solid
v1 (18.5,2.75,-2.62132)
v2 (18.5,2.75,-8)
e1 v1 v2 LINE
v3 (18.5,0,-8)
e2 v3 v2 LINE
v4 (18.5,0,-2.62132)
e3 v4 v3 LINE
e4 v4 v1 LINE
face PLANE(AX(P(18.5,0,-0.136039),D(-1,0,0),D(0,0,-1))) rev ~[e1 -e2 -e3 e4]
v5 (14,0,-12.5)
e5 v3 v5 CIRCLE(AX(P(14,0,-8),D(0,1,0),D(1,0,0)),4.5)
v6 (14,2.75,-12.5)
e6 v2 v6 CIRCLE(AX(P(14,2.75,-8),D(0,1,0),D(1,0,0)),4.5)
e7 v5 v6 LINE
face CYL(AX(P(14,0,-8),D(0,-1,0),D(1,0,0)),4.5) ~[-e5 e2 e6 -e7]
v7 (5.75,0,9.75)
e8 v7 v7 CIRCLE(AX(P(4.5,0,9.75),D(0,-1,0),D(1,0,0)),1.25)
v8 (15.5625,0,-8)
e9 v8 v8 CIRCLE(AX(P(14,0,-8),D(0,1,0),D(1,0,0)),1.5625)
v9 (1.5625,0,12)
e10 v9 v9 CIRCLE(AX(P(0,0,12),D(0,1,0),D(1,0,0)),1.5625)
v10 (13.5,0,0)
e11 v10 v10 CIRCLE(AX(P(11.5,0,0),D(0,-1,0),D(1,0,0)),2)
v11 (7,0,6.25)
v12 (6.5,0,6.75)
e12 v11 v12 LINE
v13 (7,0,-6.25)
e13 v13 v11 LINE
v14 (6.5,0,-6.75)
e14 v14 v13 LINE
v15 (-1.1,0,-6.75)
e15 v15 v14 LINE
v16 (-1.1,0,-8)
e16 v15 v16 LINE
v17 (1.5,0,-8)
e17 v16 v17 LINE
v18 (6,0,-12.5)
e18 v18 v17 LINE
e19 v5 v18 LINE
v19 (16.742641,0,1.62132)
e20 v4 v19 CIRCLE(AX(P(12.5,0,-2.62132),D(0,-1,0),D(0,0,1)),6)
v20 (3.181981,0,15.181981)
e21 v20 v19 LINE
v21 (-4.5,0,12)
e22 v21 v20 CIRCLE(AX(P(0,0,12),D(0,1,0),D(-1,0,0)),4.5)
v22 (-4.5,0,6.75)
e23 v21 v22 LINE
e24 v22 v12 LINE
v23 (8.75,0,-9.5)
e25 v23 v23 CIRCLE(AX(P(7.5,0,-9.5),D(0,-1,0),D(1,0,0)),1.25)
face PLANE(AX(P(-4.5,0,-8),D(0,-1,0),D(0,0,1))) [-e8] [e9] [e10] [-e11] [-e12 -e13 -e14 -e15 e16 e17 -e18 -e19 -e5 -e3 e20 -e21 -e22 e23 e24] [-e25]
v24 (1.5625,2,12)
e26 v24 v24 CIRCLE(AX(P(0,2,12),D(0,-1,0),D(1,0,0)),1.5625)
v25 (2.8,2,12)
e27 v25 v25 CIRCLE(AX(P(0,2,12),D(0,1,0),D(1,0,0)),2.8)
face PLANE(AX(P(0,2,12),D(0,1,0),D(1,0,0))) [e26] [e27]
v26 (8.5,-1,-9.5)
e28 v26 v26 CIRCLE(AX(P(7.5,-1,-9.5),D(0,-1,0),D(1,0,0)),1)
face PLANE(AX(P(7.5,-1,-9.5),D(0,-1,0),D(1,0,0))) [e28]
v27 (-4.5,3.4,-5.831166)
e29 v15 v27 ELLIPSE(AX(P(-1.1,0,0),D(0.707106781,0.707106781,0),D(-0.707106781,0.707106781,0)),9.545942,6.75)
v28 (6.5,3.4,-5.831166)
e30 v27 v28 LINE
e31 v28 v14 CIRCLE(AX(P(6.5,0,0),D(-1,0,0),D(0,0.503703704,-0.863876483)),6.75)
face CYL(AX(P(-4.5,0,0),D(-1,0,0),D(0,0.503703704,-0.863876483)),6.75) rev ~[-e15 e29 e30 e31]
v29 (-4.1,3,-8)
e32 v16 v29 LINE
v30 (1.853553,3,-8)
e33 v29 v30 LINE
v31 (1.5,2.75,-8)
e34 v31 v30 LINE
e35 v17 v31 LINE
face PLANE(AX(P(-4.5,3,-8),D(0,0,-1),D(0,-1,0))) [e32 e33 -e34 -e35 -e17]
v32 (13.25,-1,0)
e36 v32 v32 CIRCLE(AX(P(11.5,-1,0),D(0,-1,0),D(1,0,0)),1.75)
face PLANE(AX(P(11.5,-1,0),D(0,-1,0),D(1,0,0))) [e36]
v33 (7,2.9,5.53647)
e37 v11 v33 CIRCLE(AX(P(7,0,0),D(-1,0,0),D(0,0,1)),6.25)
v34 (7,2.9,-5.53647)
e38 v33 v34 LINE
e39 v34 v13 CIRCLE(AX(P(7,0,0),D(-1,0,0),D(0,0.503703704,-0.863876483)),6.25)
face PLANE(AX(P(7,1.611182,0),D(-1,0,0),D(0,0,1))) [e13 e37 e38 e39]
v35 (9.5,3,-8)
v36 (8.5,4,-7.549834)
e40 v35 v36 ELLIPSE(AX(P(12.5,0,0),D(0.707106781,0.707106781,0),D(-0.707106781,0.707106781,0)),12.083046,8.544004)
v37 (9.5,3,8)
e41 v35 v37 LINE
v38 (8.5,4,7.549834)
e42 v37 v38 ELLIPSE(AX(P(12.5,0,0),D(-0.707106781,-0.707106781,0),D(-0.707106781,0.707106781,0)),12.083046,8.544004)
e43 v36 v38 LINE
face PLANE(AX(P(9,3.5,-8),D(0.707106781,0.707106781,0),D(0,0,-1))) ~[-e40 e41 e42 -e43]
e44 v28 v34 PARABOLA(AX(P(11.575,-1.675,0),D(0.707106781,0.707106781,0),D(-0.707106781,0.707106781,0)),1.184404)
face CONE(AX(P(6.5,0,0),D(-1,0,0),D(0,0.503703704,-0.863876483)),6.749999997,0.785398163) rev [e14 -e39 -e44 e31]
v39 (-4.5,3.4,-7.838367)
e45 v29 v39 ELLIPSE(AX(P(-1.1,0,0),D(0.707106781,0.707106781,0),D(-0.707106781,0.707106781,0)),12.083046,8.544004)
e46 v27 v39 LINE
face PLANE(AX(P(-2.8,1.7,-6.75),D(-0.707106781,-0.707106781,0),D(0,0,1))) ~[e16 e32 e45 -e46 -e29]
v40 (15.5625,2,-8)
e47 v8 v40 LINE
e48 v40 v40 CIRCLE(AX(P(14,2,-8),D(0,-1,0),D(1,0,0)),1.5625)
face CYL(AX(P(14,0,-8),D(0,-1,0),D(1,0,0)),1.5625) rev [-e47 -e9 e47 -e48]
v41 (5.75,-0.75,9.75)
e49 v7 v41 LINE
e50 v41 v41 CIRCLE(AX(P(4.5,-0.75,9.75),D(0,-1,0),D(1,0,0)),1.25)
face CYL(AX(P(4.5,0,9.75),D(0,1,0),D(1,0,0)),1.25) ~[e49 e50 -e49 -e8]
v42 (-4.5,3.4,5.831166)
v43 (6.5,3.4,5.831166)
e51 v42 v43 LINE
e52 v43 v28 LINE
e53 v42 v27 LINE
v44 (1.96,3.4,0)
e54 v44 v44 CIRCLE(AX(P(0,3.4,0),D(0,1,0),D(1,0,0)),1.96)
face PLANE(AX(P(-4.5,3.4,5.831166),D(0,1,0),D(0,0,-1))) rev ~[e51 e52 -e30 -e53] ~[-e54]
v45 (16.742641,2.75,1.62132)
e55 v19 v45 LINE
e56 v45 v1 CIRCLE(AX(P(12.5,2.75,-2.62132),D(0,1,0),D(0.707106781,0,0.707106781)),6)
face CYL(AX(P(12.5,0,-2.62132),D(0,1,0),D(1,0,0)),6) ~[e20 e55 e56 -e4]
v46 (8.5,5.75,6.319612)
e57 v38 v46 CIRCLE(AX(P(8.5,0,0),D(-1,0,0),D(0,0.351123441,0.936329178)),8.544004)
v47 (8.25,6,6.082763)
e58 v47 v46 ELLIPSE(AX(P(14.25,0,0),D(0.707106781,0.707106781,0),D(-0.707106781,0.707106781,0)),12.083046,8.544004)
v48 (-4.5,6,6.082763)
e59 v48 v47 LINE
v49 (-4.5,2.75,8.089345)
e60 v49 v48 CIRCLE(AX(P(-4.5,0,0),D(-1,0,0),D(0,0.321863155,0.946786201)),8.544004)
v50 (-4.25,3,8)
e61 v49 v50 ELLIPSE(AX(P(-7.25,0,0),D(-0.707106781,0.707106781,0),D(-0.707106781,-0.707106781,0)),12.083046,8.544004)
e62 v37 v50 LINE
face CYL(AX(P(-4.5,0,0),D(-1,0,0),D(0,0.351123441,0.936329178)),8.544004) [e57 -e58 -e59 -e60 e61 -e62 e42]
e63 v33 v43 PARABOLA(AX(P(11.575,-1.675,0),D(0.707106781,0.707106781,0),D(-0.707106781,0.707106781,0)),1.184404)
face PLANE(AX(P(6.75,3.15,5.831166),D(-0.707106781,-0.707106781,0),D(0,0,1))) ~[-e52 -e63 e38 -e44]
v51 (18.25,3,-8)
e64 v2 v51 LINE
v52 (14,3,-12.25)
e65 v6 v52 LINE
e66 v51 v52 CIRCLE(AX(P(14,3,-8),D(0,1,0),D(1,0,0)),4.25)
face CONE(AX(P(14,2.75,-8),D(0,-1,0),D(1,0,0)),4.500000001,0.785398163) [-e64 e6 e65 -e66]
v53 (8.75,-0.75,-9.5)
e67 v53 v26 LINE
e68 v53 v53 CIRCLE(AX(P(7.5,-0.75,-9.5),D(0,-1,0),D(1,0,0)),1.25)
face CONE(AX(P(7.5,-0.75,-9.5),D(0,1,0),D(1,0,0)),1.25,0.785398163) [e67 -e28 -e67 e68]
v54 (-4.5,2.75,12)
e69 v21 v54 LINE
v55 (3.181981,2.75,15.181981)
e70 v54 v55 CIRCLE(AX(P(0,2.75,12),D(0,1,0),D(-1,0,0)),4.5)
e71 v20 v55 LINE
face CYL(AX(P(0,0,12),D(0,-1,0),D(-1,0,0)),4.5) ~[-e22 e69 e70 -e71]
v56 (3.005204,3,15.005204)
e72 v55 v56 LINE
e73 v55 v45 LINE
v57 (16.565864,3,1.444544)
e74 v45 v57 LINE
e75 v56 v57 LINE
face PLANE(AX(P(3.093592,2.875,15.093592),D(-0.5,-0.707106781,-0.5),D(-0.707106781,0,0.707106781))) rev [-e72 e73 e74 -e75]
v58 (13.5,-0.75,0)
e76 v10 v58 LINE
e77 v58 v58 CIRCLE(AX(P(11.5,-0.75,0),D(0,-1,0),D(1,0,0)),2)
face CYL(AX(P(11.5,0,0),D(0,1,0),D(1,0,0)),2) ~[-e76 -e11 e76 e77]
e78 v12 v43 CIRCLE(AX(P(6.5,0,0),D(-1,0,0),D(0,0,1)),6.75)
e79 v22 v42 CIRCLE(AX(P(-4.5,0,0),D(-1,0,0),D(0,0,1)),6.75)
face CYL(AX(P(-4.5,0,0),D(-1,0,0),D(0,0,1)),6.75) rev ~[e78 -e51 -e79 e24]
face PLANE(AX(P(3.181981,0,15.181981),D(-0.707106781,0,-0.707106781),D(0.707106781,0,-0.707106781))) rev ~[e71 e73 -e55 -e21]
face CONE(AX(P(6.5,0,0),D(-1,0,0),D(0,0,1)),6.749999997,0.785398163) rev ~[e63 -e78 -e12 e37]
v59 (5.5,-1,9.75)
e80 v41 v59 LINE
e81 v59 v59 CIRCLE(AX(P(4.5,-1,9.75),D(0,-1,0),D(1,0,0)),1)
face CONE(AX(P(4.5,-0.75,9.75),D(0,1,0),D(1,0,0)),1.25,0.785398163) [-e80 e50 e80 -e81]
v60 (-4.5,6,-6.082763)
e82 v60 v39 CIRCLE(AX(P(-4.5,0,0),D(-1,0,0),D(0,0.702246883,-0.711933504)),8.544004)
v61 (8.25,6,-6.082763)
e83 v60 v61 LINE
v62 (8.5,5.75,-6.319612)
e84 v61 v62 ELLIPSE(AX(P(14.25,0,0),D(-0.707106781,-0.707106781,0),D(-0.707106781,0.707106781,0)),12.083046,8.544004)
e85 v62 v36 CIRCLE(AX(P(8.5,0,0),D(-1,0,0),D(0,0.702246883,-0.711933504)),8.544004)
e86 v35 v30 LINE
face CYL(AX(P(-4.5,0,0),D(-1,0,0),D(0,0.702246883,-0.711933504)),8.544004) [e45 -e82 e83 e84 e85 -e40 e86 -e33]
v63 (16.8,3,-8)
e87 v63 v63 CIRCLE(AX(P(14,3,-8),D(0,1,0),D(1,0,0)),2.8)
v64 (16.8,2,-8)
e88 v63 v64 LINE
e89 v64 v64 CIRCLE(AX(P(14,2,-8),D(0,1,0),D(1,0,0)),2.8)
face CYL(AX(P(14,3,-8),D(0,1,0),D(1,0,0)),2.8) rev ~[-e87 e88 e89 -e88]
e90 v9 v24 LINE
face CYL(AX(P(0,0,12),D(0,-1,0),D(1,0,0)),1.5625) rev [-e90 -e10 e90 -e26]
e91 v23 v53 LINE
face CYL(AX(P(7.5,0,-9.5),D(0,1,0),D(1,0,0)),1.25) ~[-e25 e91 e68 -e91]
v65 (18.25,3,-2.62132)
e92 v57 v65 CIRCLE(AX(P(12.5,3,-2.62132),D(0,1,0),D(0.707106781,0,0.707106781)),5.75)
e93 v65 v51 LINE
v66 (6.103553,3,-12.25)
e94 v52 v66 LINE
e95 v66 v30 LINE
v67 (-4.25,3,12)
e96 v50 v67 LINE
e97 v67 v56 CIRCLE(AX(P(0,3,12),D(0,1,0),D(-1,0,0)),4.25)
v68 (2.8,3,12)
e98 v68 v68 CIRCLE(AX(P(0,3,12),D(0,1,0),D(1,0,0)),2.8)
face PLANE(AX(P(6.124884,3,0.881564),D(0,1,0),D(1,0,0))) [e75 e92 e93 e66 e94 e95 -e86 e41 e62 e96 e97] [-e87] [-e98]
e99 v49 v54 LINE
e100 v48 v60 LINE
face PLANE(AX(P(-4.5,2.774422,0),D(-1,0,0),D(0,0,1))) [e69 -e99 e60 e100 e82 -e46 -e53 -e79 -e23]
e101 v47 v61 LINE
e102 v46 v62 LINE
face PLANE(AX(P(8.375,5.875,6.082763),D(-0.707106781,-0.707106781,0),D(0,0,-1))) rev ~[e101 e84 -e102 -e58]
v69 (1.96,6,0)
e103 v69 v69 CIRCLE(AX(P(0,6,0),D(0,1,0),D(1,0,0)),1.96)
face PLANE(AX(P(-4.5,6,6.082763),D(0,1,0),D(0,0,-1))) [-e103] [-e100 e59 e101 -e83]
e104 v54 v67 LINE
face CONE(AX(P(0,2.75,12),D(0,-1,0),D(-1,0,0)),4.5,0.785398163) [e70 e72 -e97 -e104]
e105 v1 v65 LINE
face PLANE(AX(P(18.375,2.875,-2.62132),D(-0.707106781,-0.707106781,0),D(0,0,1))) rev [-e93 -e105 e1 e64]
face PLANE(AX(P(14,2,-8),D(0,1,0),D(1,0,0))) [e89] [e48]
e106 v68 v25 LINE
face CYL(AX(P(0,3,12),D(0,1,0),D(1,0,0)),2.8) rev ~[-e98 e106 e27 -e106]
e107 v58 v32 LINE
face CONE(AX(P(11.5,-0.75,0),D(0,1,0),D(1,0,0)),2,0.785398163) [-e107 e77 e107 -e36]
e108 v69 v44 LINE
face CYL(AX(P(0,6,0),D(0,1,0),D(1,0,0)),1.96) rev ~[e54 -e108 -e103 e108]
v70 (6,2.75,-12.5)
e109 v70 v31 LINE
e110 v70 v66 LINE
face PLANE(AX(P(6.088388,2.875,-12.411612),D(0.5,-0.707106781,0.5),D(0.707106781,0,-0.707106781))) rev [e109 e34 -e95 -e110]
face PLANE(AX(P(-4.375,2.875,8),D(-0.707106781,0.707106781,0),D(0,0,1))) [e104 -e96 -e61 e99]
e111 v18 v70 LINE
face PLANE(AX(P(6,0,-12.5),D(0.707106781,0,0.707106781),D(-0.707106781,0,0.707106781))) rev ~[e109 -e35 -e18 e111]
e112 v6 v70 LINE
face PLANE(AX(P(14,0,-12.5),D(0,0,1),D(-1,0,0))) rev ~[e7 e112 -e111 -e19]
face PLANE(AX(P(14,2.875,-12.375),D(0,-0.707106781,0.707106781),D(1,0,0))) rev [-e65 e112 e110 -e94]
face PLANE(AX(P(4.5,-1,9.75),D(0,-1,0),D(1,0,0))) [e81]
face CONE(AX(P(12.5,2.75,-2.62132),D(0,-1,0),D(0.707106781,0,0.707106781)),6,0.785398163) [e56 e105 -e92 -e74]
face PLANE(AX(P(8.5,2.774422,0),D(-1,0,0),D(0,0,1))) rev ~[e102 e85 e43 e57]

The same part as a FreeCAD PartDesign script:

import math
import FreeCAD as App
import Part
import Sketcher
Q = App.Units.Quantity


def edges_at(feature, points):
    """Names of the edges that pass closest to the given points."""
    edges = feature.Shape.Edges
    near = lambda p: min(range(len(edges)), key=lambda i: edges[i].distToShape(Part.Vertex(*p))[0])
    return sorted({f"Edge{near(p) + 1}" for p in points})

doc = App.newDocument("Part")
body = doc.addObject("PartDesign::Body", "Body")

sketch1 = doc.addObject("Sketcher::SketchObject", "Sketch")
body.addObject(sketch1)
sketch1.AttachmentSupport = (doc.XZ_Plane, [""])
sketch1.MapMode = "FlatFace"
sketch1.addGeometry([
    Part.LineSegment(App.Vector(3.2, 15.2, 0), App.Vector(18.5, -0.1, 0)),
    Part.LineSegment(App.Vector(18.5, -0.1, 0), App.Vector(18.5, -8, 0)),
    Part.ArcOfCircle(Part.Circle(App.Vector(14, -8, 0), App.Vector(0, 0, 1), 4.5), math.radians(-90), math.radians(0)),
    Part.LineSegment(App.Vector(14, -12.5, 0), App.Vector(6, -12.5, 0)),
    Part.LineSegment(App.Vector(6, -12.5, 0), App.Vector(-4.5, -2, 0)),
    Part.LineSegment(App.Vector(-4.5, -2, 0), App.Vector(-4.5, 12, 0)),
    Part.ArcOfCircle(Part.Circle(App.Vector(0, 12, 0), App.Vector(0, 0, 1), 4.5), math.radians(45), math.radians(180)),
    Part.Circle(App.Vector(0, 12, 0), App.Vector(0, 0, 1), 1.6),
    Part.Circle(App.Vector(14, -8, 0), App.Vector(0, 0, 1), 1.6),
], False)
sketch1.addConstraint([
    Sketcher.Constraint("Coincident", 0, 2, 1, 1),
    Sketcher.Constraint("Tangent", 1, 2, 2, 2),
    Sketcher.Constraint("Tangent", 2, 1, 3, 1),
    Sketcher.Constraint("Coincident", 3, 2, 4, 1),
    Sketcher.Constraint("Coincident", 4, 2, 5, 1),
    Sketcher.Constraint("Tangent", 5, 2, 6, 2),
    Sketcher.Constraint("Tangent", 6, 1, 0, 1),
    Sketcher.Constraint("Vertical", 1),
    Sketcher.Constraint("Horizontal", 3),
    Sketcher.Constraint("Vertical", 5),
    Sketcher.Constraint("Coincident", 7, 3, 6, 3),
    Sketcher.Constraint("Coincident", 8, 3, 2, 3),
    Sketcher.Constraint("Equal", 2, 6),
    Sketcher.Constraint("Equal", 7, 8),
    Sketcher.Constraint("PointOnObject", 6, 3, -2),
    Sketcher.Constraint("Parallel", 0, 4),
    Sketcher.Constraint("Radius", 2, 4.5),
    Sketcher.Constraint("DistanceX", 3, 2, 3, 1, 8.0),
    Sketcher.Constraint("DistanceY", 5, 1, 5, 2, 14.0),
    Sketcher.Constraint("Angle", 0, Q("-45 deg")),
    Sketcher.Constraint("Diameter", 7, 3.125),
    Sketcher.Constraint("DistanceX", -1, 1, 2, 3, 14.0),
    Sketcher.Constraint("DistanceY", 2, 3, -1, 1, 8.0),
])
pad1 = doc.addObject("PartDesign::Pad", "Pad")
body.addObject(pad1)
pad1.Profile = sketch1
pad1.Length = 3
pad1.Reversed = True

sketch2 = doc.addObject("Sketcher::SketchObject", "Sketch001")
body.addObject(sketch2)
sketch2.AttachmentSupport = (doc.YZ_Plane, [""])
sketch2.MapMode = "FlatFace"
sketch2.AttachmentOffset = App.Placement(App.Vector(0, 0, -4.5), App.Rotation())
sketch2.addGeometry([
    Part.LineSegment(App.Vector(0, -8, 0), App.Vector(0, 8, 0)),
    Part.LineSegment(App.Vector(0, 8, 0), App.Vector(3, 8, 0)),
    Part.ArcOfCircle(Part.Circle(App.Vector(0, 0, 0), App.Vector(0, 0, 1), 8.5), math.radians(45), math.radians(69)),
    Part.LineSegment(App.Vector(6, 6.1, 0), App.Vector(6, -6.1, 0)),
    Part.ArcOfCircle(Part.Circle(App.Vector(0, 0, 0), App.Vector(0, 0, 1), 8.5), math.radians(-69), math.radians(-45)),
    Part.LineSegment(App.Vector(3, -8, 0), App.Vector(0, -8, 0)),
], False)
sketch2.addConstraint([
    Sketcher.Constraint("Coincident", 0, 2, 1, 1),
    Sketcher.Constraint("Coincident", 1, 2, 2, 2),
    Sketcher.Constraint("Coincident", 2, 1, 3, 1),
    Sketcher.Constraint("Coincident", 3, 2, 4, 2),
    Sketcher.Constraint("Coincident", 4, 1, 5, 1),
    Sketcher.Constraint("Coincident", 5, 2, 0, 1),
    Sketcher.Constraint("Vertical", 0),
    Sketcher.Constraint("Horizontal", 1),
    Sketcher.Constraint("Vertical", 3),
    Sketcher.Constraint("Horizontal", 5),
    Sketcher.Constraint("Coincident", 2, 3, -1, 1),
    Sketcher.Constraint("Coincident", 4, 3, -1, 1),
    Sketcher.Constraint("Equal", 2, 4),
    Sketcher.Constraint("Symmetric", 0, 2, 5, 2, -1, 1),
    Sketcher.Constraint("DistanceX", 1, 1, 1, 2, 3.0),
    Sketcher.Constraint("DistanceY", 0, 1, 0, 2, 16.0),
    Sketcher.Constraint("DistanceX", -1, 1, 2, 1, 6.0),
])
pad2 = doc.addObject("PartDesign::Pad", "Pad001")
body.addObject(pad2)
pad2.Profile = sketch2
pad2.Length = 13

sketch3 = doc.addObject("Sketcher::SketchObject", "Sketch002")
body.addObject(sketch3)
sketch3.AttachmentSupport = (doc.YZ_Plane, [""])
sketch3.MapMode = "FlatFace"
sketch3.AttachmentOffset = App.Placement(App.Vector(0, 0, -4.5), App.Rotation())
sketch3.addGeometry([
    Part.LineSegment(App.Vector(0, -6.8, 0), App.Vector(0, 6.8, 0)),
    Part.ArcOfCircle(Part.Circle(App.Vector(0, 0, 0), App.Vector(0, 0, 1), 6.7), math.radians(60), math.radians(90)),
    Part.LineSegment(App.Vector(3.4, 5.8, 0), App.Vector(3.4, -5.8, 0)),
    Part.ArcOfCircle(Part.Circle(App.Vector(0, 0, 0), App.Vector(0, 0, 1), 6.7), math.radians(-90), math.radians(-60)),
], False)
sketch3.addConstraint([
    Sketcher.Constraint("Coincident", 0, 2, 1, 2),
    Sketcher.Constraint("Coincident", 1, 1, 2, 1),
    Sketcher.Constraint("Coincident", 2, 2, 3, 2),
    Sketcher.Constraint("Coincident", 3, 1, 0, 1),
    Sketcher.Constraint("Vertical", 0),
    Sketcher.Constraint("Vertical", 2),
    Sketcher.Constraint("Coincident", 1, 3, -1, 1),
    Sketcher.Constraint("Coincident", 3, 3, -1, 1),
    Sketcher.Constraint("Equal", 1, 3),
    Sketcher.Constraint("PointOnObject", 0, 2, -2),
    Sketcher.Constraint("Radius", 1, 6.75),
    Sketcher.Constraint("DistanceX", -1, 1, 1, 1, 3.4),
])
pocket1 = doc.addObject("PartDesign::Pocket", "Pocket")
body.addObject(pocket1)
pocket1.Profile = sketch3
pocket1.Length = 11.5
pocket1.Reversed = True

sketch4 = doc.addObject("Sketcher::SketchObject", "Sketch003")
body.addObject(sketch4)
sketch4.AttachmentSupport = (doc.XZ_Plane, [""])
sketch4.MapMode = "FlatFace"
sketch4.AttachmentOffset = App.Placement(App.Vector(0, 0, -6), App.Rotation())
sketch4.addGeometry(Part.Circle(App.Vector(0, 0, 0), App.Vector(0, 0, 1), 2), False)
sketch4.addConstraint([
    Sketcher.Constraint("Coincident", 0, 3, -1, 1),
    Sketcher.Constraint("Diameter", 0, 3.92),
])
pocket2 = doc.addObject("PartDesign::Pocket", "Pocket001")
body.addObject(pocket2)
pocket2.Profile = sketch4
pocket2.Type = "ThroughAll"
pocket2.Reversed = True
doc.recompute()

chamfer = doc.addObject("PartDesign::Chamfer", "Chamfer")
body.addObject(chamfer)
chamfer.Base = (pocket2, edges_at(pocket2, [(8.5, 3, 0)]))
chamfer.Size = 1
doc.recompute()

fillet = doc.addObject("PartDesign::Fillet", "Fillet")
body.addObject(fillet)
fillet.Base = (chamfer, edges_at(chamfer, [(18.5, 1.5, -0.136)]))
fillet.Radius = 6
doc.recompute()

chamfer2 = doc.addObject("PartDesign::Chamfer", "Chamfer001")
body.addObject(chamfer2)
chamfer2.Base = (fillet, edges_at(fillet, [(-4.5, 0, -7.375)]))
chamfer2.Size = 3.4
doc.recompute()

chamfer3 = doc.addObject("PartDesign::Chamfer", "Chamfer002")
body.addObject(chamfer3)
chamfer3.Base = (chamfer2, edges_at(chamfer2, [(7, 1.761, -6.516), (7, 3.4, 0), (7, 1.761, 6.516)]))
chamfer3.Size = 0.5

sketch5 = doc.addObject("Sketcher::SketchObject", "Sketch004")
body.addObject(sketch5)
sketch5.AttachmentSupport = (doc.XZ_Plane, [""])
sketch5.MapMode = "FlatFace"
sketch5.AttachmentOffset = App.Placement(App.Vector(0, 0, -3), App.Rotation())
sketch5.addGeometry([
    Part.Circle(App.Vector(0, 12, 0), App.Vector(0, 0, 1), 2.8),
    Part.Circle(App.Vector(14, -8, 0), App.Vector(0, 0, 1), 2.8),
], False)
sketch5.addConstraint([
    Sketcher.Constraint("Equal", 0, 1),
    Sketcher.Constraint("PointOnObject", 0, 3, -2),
    Sketcher.Constraint("Diameter", 0, 5.6),
    Sketcher.Constraint("DistanceY", -1, 1, 0, 3, 12.0),
    Sketcher.Constraint("DistanceX", -1, 1, 1, 3, 14.0),
    Sketcher.Constraint("DistanceY", 1, 3, -1, 1, 8.0),
])
pocket3 = doc.addObject("PartDesign::Pocket", "Pocket002")
body.addObject(pocket3)
pocket3.Profile = sketch5
pocket3.Length = 1
pocket3.Reversed = True

sketch6 = doc.addObject("Sketcher::SketchObject", "Sketch005")
body.addObject(sketch6)
sketch6.AttachmentSupport = (doc.XZ_Plane, [""])
sketch6.MapMode = "FlatFace"
sketch6.addGeometry([
    Part.Circle(App.Vector(4.5, 9.8, 0), App.Vector(0, 0, 1), 1.2),
    Part.Circle(App.Vector(11.5, 0, 0), App.Vector(0, 0, 1), 2),
    Part.Circle(App.Vector(7.5, -9.5, 0), App.Vector(0, 0, 1), 1.2),
], False)
sketch6.addConstraint([
    Sketcher.Constraint("Equal", 0, 2),
    Sketcher.Constraint("PointOnObject", 1, 3, -1),
    Sketcher.Constraint("Diameter", 1, 4.0),
    Sketcher.Constraint("Diameter", 0, 2.5),
    Sketcher.Constraint("DistanceX", 0, 3, 1, 3, 7.0),
    Sketcher.Constraint("DistanceX", 2, 3, 1, 3, 4.0),
    Sketcher.Constraint("DistanceX", -1, 1, 0, 3, 4.5),
    Sketcher.Constraint("DistanceY", 2, 3, -1, 1, 9.5),
    Sketcher.Constraint("DistanceY", -1, 1, 0, 3, 9.75),
])
pad3 = doc.addObject("PartDesign::Pad", "Pad002")
body.addObject(pad3)
pad3.Profile = sketch6
pad3.Length = 1
doc.recompute()

chamfer4 = doc.addObject("PartDesign::Chamfer", "Chamfer003")
body.addObject(chamfer4)
chamfer4.Base = (pad3, edges_at(pad3, [
    (-1.722, 3, 16.157),
    (3.25, -1, 9.75),
    (9.5, -1, 0),
    (6.25, -1, -9.5),
    (9.962, 3, 8.402),
    (17.182, 3, -11.182),
    (10, 3, -12.5),
    (-4.5, 3, 10),
    (3.75, 3, -10.25),
    (8.5, 6, 0),
    (18.5, 3, -5.311),
    (18.043, 3, -0.325),
]))
chamfer4.Size = 0.25

doc.recompute()
